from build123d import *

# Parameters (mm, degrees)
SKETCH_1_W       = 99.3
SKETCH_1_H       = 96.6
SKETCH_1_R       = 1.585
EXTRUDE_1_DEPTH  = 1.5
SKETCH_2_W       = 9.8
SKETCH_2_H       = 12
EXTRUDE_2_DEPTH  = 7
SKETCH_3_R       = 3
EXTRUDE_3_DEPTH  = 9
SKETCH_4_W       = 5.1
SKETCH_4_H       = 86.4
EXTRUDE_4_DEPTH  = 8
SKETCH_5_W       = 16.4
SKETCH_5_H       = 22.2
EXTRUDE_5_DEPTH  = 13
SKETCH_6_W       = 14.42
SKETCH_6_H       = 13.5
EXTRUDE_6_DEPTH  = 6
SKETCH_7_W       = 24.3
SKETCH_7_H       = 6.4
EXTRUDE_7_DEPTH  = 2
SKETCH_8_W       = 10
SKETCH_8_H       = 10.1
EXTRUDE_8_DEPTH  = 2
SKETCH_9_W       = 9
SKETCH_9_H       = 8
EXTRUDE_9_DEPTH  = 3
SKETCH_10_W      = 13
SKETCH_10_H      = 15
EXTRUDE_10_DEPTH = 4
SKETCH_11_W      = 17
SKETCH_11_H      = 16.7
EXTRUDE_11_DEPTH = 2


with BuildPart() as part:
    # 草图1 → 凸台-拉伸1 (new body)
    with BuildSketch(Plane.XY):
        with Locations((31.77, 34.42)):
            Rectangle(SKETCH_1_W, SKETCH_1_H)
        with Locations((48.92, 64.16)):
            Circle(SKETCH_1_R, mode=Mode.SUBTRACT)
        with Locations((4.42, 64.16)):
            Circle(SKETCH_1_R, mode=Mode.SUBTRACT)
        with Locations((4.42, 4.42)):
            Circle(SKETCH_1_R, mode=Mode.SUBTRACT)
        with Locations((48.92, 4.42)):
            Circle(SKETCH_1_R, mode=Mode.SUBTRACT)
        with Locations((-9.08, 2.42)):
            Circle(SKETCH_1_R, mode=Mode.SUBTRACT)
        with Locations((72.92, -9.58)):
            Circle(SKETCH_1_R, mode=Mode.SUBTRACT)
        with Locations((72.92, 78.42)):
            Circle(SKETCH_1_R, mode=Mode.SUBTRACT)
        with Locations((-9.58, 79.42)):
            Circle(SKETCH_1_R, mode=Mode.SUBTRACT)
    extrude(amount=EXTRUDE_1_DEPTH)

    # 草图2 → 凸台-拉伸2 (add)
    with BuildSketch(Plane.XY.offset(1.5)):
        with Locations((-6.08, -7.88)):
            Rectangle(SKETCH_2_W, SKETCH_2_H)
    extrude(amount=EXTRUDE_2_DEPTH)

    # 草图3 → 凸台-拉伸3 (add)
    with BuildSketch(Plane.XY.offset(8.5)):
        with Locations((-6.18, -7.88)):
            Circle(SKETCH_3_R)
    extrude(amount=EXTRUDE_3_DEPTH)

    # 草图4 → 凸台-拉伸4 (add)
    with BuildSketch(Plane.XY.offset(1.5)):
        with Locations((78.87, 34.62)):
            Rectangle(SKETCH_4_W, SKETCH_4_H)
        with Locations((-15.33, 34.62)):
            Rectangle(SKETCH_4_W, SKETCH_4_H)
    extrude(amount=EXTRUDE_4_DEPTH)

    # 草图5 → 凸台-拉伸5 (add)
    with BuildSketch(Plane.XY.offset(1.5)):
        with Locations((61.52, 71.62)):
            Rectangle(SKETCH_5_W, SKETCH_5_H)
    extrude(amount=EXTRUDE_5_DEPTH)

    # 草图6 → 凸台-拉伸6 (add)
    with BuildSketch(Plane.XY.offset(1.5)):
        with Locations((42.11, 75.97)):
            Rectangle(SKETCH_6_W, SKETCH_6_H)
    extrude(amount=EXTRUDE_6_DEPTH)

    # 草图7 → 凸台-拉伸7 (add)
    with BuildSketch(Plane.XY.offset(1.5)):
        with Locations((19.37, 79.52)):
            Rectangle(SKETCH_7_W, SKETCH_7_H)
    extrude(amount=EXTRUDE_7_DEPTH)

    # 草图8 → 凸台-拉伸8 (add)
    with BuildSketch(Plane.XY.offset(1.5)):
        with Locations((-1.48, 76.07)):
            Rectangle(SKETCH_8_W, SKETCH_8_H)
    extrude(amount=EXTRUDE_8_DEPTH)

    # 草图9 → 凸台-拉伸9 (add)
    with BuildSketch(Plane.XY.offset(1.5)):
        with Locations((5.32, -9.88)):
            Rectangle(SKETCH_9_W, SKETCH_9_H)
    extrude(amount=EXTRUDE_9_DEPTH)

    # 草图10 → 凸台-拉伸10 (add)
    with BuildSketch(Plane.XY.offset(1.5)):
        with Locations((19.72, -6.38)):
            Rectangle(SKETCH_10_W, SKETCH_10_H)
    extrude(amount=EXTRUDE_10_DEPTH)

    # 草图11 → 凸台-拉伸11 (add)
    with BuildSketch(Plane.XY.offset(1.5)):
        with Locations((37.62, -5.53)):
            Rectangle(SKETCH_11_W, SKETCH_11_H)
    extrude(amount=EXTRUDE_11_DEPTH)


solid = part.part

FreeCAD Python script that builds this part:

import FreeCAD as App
import Part
import Sketcher

V = App.Vector
Q = App.Units.Quantity

doc = App.newDocument("Part")
body = doc.addObject("PartDesign::Body", "Body")

# Sketch on XY plane
sketch1 = body.newObject("Sketcher::SketchObject", "Sketch")
sketch1.AttachmentSupport = (doc.getObject("XY_Plane"), [""])
sketch1.MapMode = "FlatFace"
sketch1.addGeometry(Part.LineSegment(V(-17.9, 82.7, 0), V(-17.9, -13.9, 0)), False)
sketch1.addGeometry(Part.LineSegment(V(-17.9, -13.9, 0), V(81.4, -13.9, 0)), False)
sketch1.addGeometry(Part.LineSegment(V(81.4, -13.9, 0), V(81.4, 82.7, 0)), False)
sketch1.addGeometry(Part.LineSegment(V(81.4, 82.7, 0), V(-17.9, 82.7, 0)), False)
sketch1.addGeometry(Part.Circle(V(-9.1, 2.4, 0), V(0, 0, 1), 1.6), False)
sketch1.addGeometry(Part.Circle(V(4.4, 4.4, 0), V(0, 0, 1), 1.6), False)
sketch1.addGeometry(Part.Circle(V(48.9, 4.4, 0), V(0, 0, 1), 1.6), False)
sketch1.addGeometry(Part.Circle(V(72.9, -9.6, 0), V(0, 0, 1), 1.6), False)
sketch1.addGeometry(Part.Circle(V(4.4, 64.2, 0), V(0, 0, 1), 1.6), False)
sketch1.addGeometry(Part.Circle(V(-9.6, 79.4, 0), V(0, 0, 1), 1.6), False)
sketch1.addGeometry(Part.Circle(V(48.9, 64.2, 0), V(0, 0, 1), 1.6), False)
sketch1.addGeometry(Part.Circle(V(72.9, 78.4, 0), V(0, 0, 1), 1.6), False)
sketch1.addConstraint(Sketcher.Constraint("Coincident", 0, 2, 1, 1))
sketch1.addConstraint(Sketcher.Constraint("Coincident", 1, 2, 2, 1))
sketch1.addConstraint(Sketcher.Constraint("Coincident", 2, 2, 3, 1))
sketch1.addConstraint(Sketcher.Constraint("Coincident", 3, 2, 0, 1))
sketch1.addConstraint(Sketcher.Constraint("Vertical", 0))
sketch1.addConstraint(Sketcher.Constraint("Horizontal", 1))
sketch1.addConstraint(Sketcher.Constraint("Vertical", 2))
sketch1.addConstraint(Sketcher.Constraint("Horizontal", 3))
sketch1.addConstraint(Sketcher.Constraint("Equal", 4, 5))
sketch1.addConstraint(Sketcher.Constraint("Equal", 5, 6))
sketch1.addConstraint(Sketcher.Constraint("Equal", 6, 7))
sketch1.addConstraint(Sketcher.Constraint("Equal", 7, 8))
sketch1.addConstraint(Sketcher.Constraint("Equal", 8, 9))
sketch1.addConstraint(Sketcher.Constraint("Equal", 9, 10))
sketch1.addConstraint(Sketcher.Constraint("Equal", 10, 11))
sketch1.addConstraint(Sketcher.Constraint("Horizontal", 5, 3, 6, 3))
sketch1.addConstraint(Sketcher.Constraint("Horizontal", 8, 3, 10, 3))
sketch1.addConstraint(Sketcher.Constraint("Vertical", 5, 3, 8, 3))
sketch1.addConstraint(Sketcher.Constraint("Vertical", 6, 3, 10, 3))
sketch1.addConstraint(Sketcher.Constraint("Vertical", 7, 3, 11, 3))
sketch1.addConstraint(Sketcher.Constraint("Diameter", 4, Q("3.17 mm")))
sketch1.addConstraint(Sketcher.Constraint("DistanceX", 1, 1, 1, 2, Q("99.3 mm")))
sketch1.addConstraint(Sketcher.Constraint("DistanceY", 0, 2, 0, 1, Q("96.6 mm")))
sketch1.addConstraint(Sketcher.Constraint("DistanceY", 4, 3, 5, 3, Q("2 mm")))
sketch1.addConstraint(Sketcher.Constraint("DistanceX", 4, 3, 6, 3, Q("58 mm")))
sketch1.addConstraint(Sketcher.Constraint("DistanceX", 6, 3, 7, 3, Q("24 mm")))
sketch1.addConstraint(Sketcher.Constraint("DistanceY", 7, 3, 6, 3, Q("14 mm")))
sketch1.addConstraint(Sketcher.Constraint("DistanceX", 9, 3, 8, 3, Q("14 mm")))
sketch1.addConstraint(Sketcher.Constraint("DistanceY", 5, 3, 9, 3, Q("75 mm")))
sketch1.addConstraint(Sketcher.Constraint("DistanceY", 6, 3, 11, 3, Q("74 mm")))
sketch1.addConstraint(Sketcher.Constraint("DistanceX", 5, 3, 1, 2, Q("77 mm")))
sketch1.addConstraint(Sketcher.Constraint("DistanceX", 4, 3, 5, 3, Q("13.5 mm")))
sketch1.addConstraint(Sketcher.Constraint("DistanceY", 0, 2, 4, 3, Q("16.3 mm")))
sketch1.addConstraint(Sketcher.Constraint("DistanceX", 4, 3, -1, 1, Q("9.08 mm")))
sketch1.addConstraint(Sketcher.Constraint("DistanceY", -1, 1, 4, 3, Q("2.42 mm")))
sketch1.addConstraint(Sketcher.Constraint("DistanceY", -1, 1, 8, 3, Q("64.16 mm")))
pad1 = body.newObject("PartDesign::Pad", "Pad")
pad1.Profile = sketch1
pad1.Length = 1.5

# Sketch on XY plane
sketch2 = body.newObject("Sketcher::SketchObject", "Sketch001")
sketch2.AttachmentSupport = (doc.getObject("XY_Plane"), [""])
sketch2.MapMode = "FlatFace"
sketch2.AttachmentOffset = App.Placement(V(0, 0, 1.5), App.Rotation())
sketch2.addGeometry(Part.LineSegment(V(-11, -2, 0), V(-11, -14, 0)), False)
sketch2.addGeometry(Part.LineSegment(V(-11, -14, 0), V(-1, -14, 0)), False)
sketch2.addGeometry(Part.LineSegment(V(-1, -14, 0), V(-1, -2, 0)), False)
sketch2.addGeometry(Part.LineSegment(V(-1, -2, 0), V(-11, -2, 0)), False)
sketch2.addConstraint(Sketcher.Constraint("Coincident", 0, 2, 1, 1))
sketch2.addConstraint(Sketcher.Constraint("Coincident", 1, 2, 2, 1))
sketch2.addConstraint(Sketcher.Constraint("Coincident", 2, 2, 3, 1))
sketch2.addConstraint(Sketcher.Constraint("Coincident", 3, 2, 0, 1))
sketch2.addConstraint(Sketcher.Constraint("Vertical", 0))
sketch2.addConstraint(Sketcher.Constraint("Horizontal", 1))
sketch2.addConstraint(Sketcher.Constraint("Vertical", 2))
sketch2.addConstraint(Sketcher.Constraint("Horizontal", 3))
sketch2.addConstraint(Sketcher.Constraint("DistanceY", 0, 2, 0, 1, Q("12 mm")))
sketch2.addConstraint(Sketcher.Constraint("DistanceX", 1, 1, 1, 2, Q("9.8 mm")))
sketch2.addConstraint(Sketcher.Constraint("DistanceX", 0, 2, -1, 1, Q("10.98 mm")))
sketch2.addConstraint(Sketcher.Constraint("DistanceY", 0, 2, -1, 1, Q("13.88 mm")))
pad2 = body.newObject("PartDesign::Pad", "Pad001")
pad2.Profile = sketch2
pad2.Length = 7

# Sketch on XY plane
sketch3 = body.newObject("Sketcher::SketchObject", "Sketch002")
sketch3.AttachmentSupport = (doc.getObject("XY_Plane"), [""])
sketch3.MapMode = "FlatFace"
sketch3.AttachmentOffset = App.Placement(V(0, 0, 8.5), App.Rotation())
sketch3.addGeometry(Part.Circle(V(-6.2, -7.9, 0), V(0, 0, 1), 3), False)
sketch3.addConstraint(Sketcher.Constraint("Diameter", 0, Q("6 mm")))
sketch3.addConstraint(Sketcher.Constraint("DistanceX", 0, 3, -1, 1, Q("6.18 mm")))
sketch3.addConstraint(Sketcher.Constraint("DistanceY", 0, 3, -1, 1, Q("7.88 mm")))
pad3 = body.newObject("PartDesign::Pad", "Pad002")
pad3.Profile = sketch3
pad3.Length = 9

# Sketch on XY plane
sketch4 = body.newObject("Sketcher::SketchObject", "Sketch003")
sketch4.AttachmentSupport = (doc.getObject("XY_Plane"), [""])
sketch4.MapMode = "FlatFace"
sketch4.AttachmentOffset = App.Placement(V(0, 0, 1.5), App.Rotation())
sketch4.addGeometry(Part.LineSegment(V(76, 78, 0), V(76, -9, 0)), False)
sketch4.addGeometry(Part.LineSegment(V(76, -9, 0), V(81, -9, 0)), False)
sketch4.addGeometry(Part.LineSegment(V(81, -9, 0), V(81, 78, 0)), False)
sketch4.addGeometry(Part.LineSegment(V(81, 78, 0), V(76, 78, 0)), False)
sketch4.addGeometry(Part.LineSegment(V(-18, 78, 0), V(-18, -9, 0)), False)
sketch4.addGeometry(Part.LineSegment(V(-18, -9, 0), V(-13, -9, 0)), False)
sketch4.addGeometry(Part.LineSegment(V(-13, -9, 0), V(-13, 78, 0)), False)
sketch4.addGeometry(Part.LineSegment(V(-13, 78, 0), V(-18, 78, 0)), False)
sketch4.addConstraint(Sketcher.Constraint("Coincident", 0, 2, 1, 1))
sketch4.addConstraint(Sketcher.Constraint("Coincident", 1, 2, 2, 1))
sketch4.addConstraint(Sketcher.Constraint("Coincident", 2, 2, 3, 1))
sketch4.addConstraint(Sketcher.Constraint("Coincident", 3, 2, 0, 1))
sketch4.addConstraint(Sketcher.Constraint("Coincident", 4, 2, 5, 1))
sketch4.addConstraint(Sketcher.Constraint("Coincident", 5, 2, 6, 1))
sketch4.addConstraint(Sketcher.Constraint("Coincident", 6, 2, 7, 1))
sketch4.addConstraint(Sketcher.Constraint("Coincident", 7, 2, 4, 1))
sketch4.addConstraint(Sketcher.Constraint("Vertical", 0))
sketch4.addConstraint(Sketcher.Constraint("Horizontal", 1))
sketch4.addConstraint(Sketcher.Constraint("Vertical", 2))
sketch4.addConstraint(Sketcher.Constraint("Horizontal", 3))
sketch4.addConstraint(Sketcher.Constraint("Vertical", 4))
sketch4.addConstraint(Sketcher.Constraint("Horizontal", 5))
sketch4.addConstraint(Sketcher.Constraint("Vertical", 6))
sketch4.addConstraint(Sketcher.Constraint("Horizontal", 7))
sketch4.addConstraint(Sketcher.Constraint("Horizontal", 1, 2, 4, 2))
sketch4.addConstraint(Sketcher.Constraint("Horizontal", 3, 2, 6, 2))
sketch4.addConstraint(Sketcher.Constraint("Equal", 3, 5))
sketch4.addConstraint(Sketcher.Constraint("DistanceX", 1, 1, 1, 2, Q("5.1 mm")))
sketch4.addConstraint(Sketcher.Constraint("DistanceY", 0, 2, 0, 1, Q("86.4 mm")))
sketch4.addConstraint(Sketcher.Constraint("DistanceX", 4, 2, 0, 2, Q("94.2 mm")))
sketch4.addConstraint(Sketcher.Constraint("DistanceX", -1, 1, 0, 2, Q("76.32 mm")))
sketch4.addConstraint(Sketcher.Constraint("DistanceY", 0, 2, -1, 1, Q("8.58 mm")))
pad4 = body.newObject("PartDesign::Pad", "Pad003")
pad4.Profile = sketch4
pad4.Length = 8

# Sketch on XY plane
sketch5 = body.newObject("Sketcher::SketchObject", "Sketch004")
sketch5.AttachmentSupport = (doc.getObject("XY_Plane"), [""])
sketch5.MapMode = "FlatFace"
sketch5.AttachmentOffset = App.Placement(V(0, 0, 1.5), App.Rotation())
sketch5.addGeometry(Part.LineSegment(V(53, 83, 0), V(53, 61, 0)), False)
sketch5.addGeometry(Part.LineSegment(V(53, 61, 0), V(70, 61, 0)), False)
sketch5.addGeometry(Part.LineSegment(V(70, 61, 0), V(70, 83, 0)), False)
sketch5.addGeometry(Part.LineSegment(V(70, 83, 0), V(53, 83, 0)), False)
sketch5.addConstraint(Sketcher.Constraint("Coincident", 0, 2, 1, 1))
sketch5.addConstraint(Sketcher.Constraint("Coincident", 1, 2, 2, 1))
sketch5.addConstraint(Sketcher.Constraint("Coincident", 2, 2, 3, 1))
sketch5.addConstraint(Sketcher.Constraint("Coincident", 3, 2, 0, 1))
sketch5.addConstraint(Sketcher.Constraint("Vertical", 0))
sketch5.addConstraint(Sketcher.Constraint("Horizontal", 1))
sketch5.addConstraint(Sketcher.Constraint("Vertical", 2))
sketch5.addConstraint(Sketcher.Constraint("Horizontal", 3))
sketch5.addConstraint(Sketcher.Constraint("DistanceX", 1, 1, 1, 2, Q("16.4 mm")))
sketch5.addConstraint(Sketcher.Constraint("DistanceY", 0, 2, 0, 1, Q("22.2 mm")))
sketch5.addConstraint(Sketcher.Constraint("DistanceX", -1, 1, 0, 2, Q("53.32 mm")))
sketch5.addConstraint(Sketcher.Constraint("DistanceY", -1, 1, 0, 2, Q("60.52 mm")))
pad5 = body.newObject("PartDesign::Pad", "Pad004")
pad5.Profile = sketch5
pad5.Length = 13

# Sketch on XY plane
sketch6 = body.newObject("Sketcher::SketchObject", "Sketch005")
sketch6.AttachmentSupport = (doc.getObject("XY_Plane"), [""])
sketch6.MapMode = "FlatFace"
sketch6.AttachmentOffset = App.Placement(V(0, 0, 1.5), App.Rotation())
sketch6.addGeometry(Part.LineSegment(V(35, 83, 0), V(35, 69, 0)), False)
sketch6.addGeometry(Part.LineSegment(V(35, 69, 0), V(49, 69, 0)), False)
sketch6.addGeometry(Part.LineSegment(V(49, 69, 0), V(49, 83, 0)), False)
sketch6.addGeometry(Part.LineSegment(V(49, 83, 0), V(35, 83, 0)), False)
sketch6.addConstraint(Sketcher.Constraint("Coincident", 0, 2, 1, 1))
sketch6.addConstraint(Sketcher.Constraint("Coincident", 1, 2, 2, 1))
sketch6.addConstraint(Sketcher.Constraint("Coincident", 2, 2, 3, 1))
sketch6.addConstraint(Sketcher.Constraint("Coincident", 3, 2, 0, 1))
sketch6.addConstraint(Sketcher.Constraint("Vertical", 0))
sketch6.addConstraint(Sketcher.Constraint("Horizontal", 1))
sketch6.addConstraint(Sketcher.Constraint("Vertical", 2))
sketch6.addConstraint(Sketcher.Constraint("Horizontal", 3))
sketch6.addConstraint(Sketcher.Constraint("DistanceY", 0, 2, 0, 1, Q("13.5 mm")))
sketch6.addConstraint(Sketcher.Constraint("DistanceX", 1, 1, 1, 2, Q("14.42 mm")))
sketch6.addConstraint(Sketcher.Constraint("DistanceX", -1, 1, 0, 2, Q("34.9 mm")))
sketch6.addConstraint(Sketcher.Constraint("DistanceY", -1, 1, 0, 2, Q("69.22 mm")))
pad6 = body.newObject("PartDesign::Pad", "Pad005")
pad6.Profile = sketch6
pad6.Length = 6

# Sketch on XY plane
sketch7 = body.newObject("Sketcher::SketchObject", "Sketch006")
sketch7.AttachmentSupport = (doc.getObject("XY_Plane"), [""])
sketch7.MapMode = "FlatFace"
sketch7.AttachmentOffset = App.Placement(V(0, 0, 1.5), App.Rotation())
sketch7.addGeometry(Part.LineSegment(V(7, 83, 0), V(7, 76, 0)), False)
sketch7.addGeometry(Part.LineSegment(V(7, 76, 0), V(32, 76, 0)), False)
sketch7.addGeometry(Part.LineSegment(V(32, 76, 0), V(32, 83, 0)), False)
sketch7.addGeometry(Part.LineSegment(V(32, 83, 0), V(7, 83, 0)), False)
sketch7.addConstraint(Sketcher.Constraint("Coincident", 0, 2, 1, 1))
sketch7.addConstraint(Sketcher.Constraint("Coincident", 1, 2, 2, 1))
sketch7.addConstraint(Sketcher.Constraint("Coincident", 2, 2, 3, 1))
sketch7.addConstraint(Sketcher.Constraint("Coincident", 3, 2, 0, 1))
sketch7.addConstraint(Sketcher.Constraint("Vertical", 0))
sketch7.addConstraint(Sketcher.Constraint("Horizontal", 1))
sketch7.addConstraint(Sketcher.Constraint("Vertical", 2))
sketch7.addConstraint(Sketcher.Constraint("Horizontal", 3))
sketch7.addConstraint(Sketcher.Constraint("DistanceX", 1, 1, 1, 2, Q("24.3 mm")))
sketch7.addConstraint(Sketcher.Constraint("DistanceY", 0, 2, 0, 1, Q("6.4 mm")))
sketch7.addConstraint(Sketcher.Constraint("DistanceX", -1, 1, 0, 2, Q("7.22 mm")))
sketch7.addConstraint(Sketcher.Constraint("DistanceY", -1, 1, 0, 2, Q("76.32 mm")))
pad7 = body.newObject("PartDesign::Pad", "Pad006")
pad7.Profile = sketch7
pad7.Length = 2

# Sketch on XY plane
sketch8 = body.newObject("Sketcher::SketchObject", "Sketch007")
sketch8.AttachmentSupport = (doc.getObject("XY_Plane"), [""])
sketch8.MapMode = "FlatFace"
sketch8.AttachmentOffset = App.Placement(V(0, 0, 1.5), App.Rotation())
sketch8.addGeometry(Part.LineSegment(V(-6, 81, 0), V(-6, 71, 0)), False)
sketch8.addGeometry(Part.LineSegment(V(-6, 71, 0), V(4, 71, 0)), False)
sketch8.addGeometry(Part.LineSegment(V(4, 71, 0), V(4, 81, 0)), False)
sketch8.addGeometry(Part.LineSegment(V(4, 81, 0), V(-6, 81, 0)), False)
sketch8.addConstraint(Sketcher.Constraint("Coincident", 0, 2, 1, 1))
sketch8.addConstraint(Sketcher.Constraint("Coincident", 1, 2, 2, 1))
sketch8.addConstraint(Sketcher.Constraint("Coincident", 2, 2, 3, 1))
sketch8.addConstraint(Sketcher.Constraint("Coincident", 3, 2, 0, 1))
sketch8.addConstraint(Sketcher.Constraint("Vertical", 0))
sketch8.addConstraint(Sketcher.Constraint("Horizontal", 1))
sketch8.addConstraint(Sketcher.Constraint("Vertical", 2))
sketch8.addConstraint(Sketcher.Constraint("Horizontal", 3))
sketch8.addConstraint(Sketcher.Constraint("DistanceX", 1, 1, 1, 2, Q("10 mm")))
sketch8.addConstraint(Sketcher.Constraint("DistanceY", 0, 2, 0, 1, Q("10.1 mm")))
sketch8.addConstraint(Sketcher.Constraint("DistanceX", 0, 2, -1, 1, Q("6.48 mm")))
sketch8.addConstraint(Sketcher.Constraint("DistanceY", -1, 1, 0, 2, Q("71.02 mm")))
pad8 = body.newObject("PartDesign::Pad", "Pad007")
pad8.Profile = sketch8
pad8.Length = 2

# Sketch on XY plane
sketch9 = body.newObject("Sketcher::SketchObject", "Sketch008")
sketch9.AttachmentSupport = (doc.getObject("XY_Plane"), [""])
sketch9.MapMode = "FlatFace"
sketch9.AttachmentOffset = App.Placement(V(0, 0, 1.5), App.Rotation())
sketch9.addGeometry(Part.LineSegment(V(1, -6, 0), V(1, -14, 0)), False)
sketch9.addGeometry(Part.LineSegment(V(1, -14, 0), V(10, -14, 0)), False)
sketch9.addGeometry(Part.LineSegment(V(10, -14, 0), V(10, -6, 0)), False)
sketch9.addGeometry(Part.LineSegment(V(10, -6, 0), V(1, -6, 0)), False)
sketch9.addConstraint(Sketcher.Constraint("Coincident", 0, 2, 1, 1))
sketch9.addConstraint(Sketcher.Constraint("Coincident", 1, 2, 2, 1))
sketch9.addConstraint(Sketcher.Constraint("Coincident", 2, 2, 3, 1))
sketch9.addConstraint(Sketcher.Constraint("Coincident", 3, 2, 0, 1))
sketch9.addConstraint(Sketcher.Constraint("Vertical", 0))
sketch9.addConstraint(Sketcher.Constraint("Horizontal", 1))
sketch9.addConstraint(Sketcher.Constraint("Vertical", 2))
sketch9.addConstraint(Sketcher.Constraint("Horizontal", 3))
sketch9.addConstraint(Sketcher.Constraint("DistanceX", 1, 1, 1, 2, Q("9 mm")))
sketch9.addConstraint(Sketcher.Constraint("DistanceY", 0, 2, 0, 1, Q("8 mm")))
sketch9.addConstraint(Sketcher.Constraint("DistanceX", -1, 1, 0, 2, Q("0.82 mm")))
sketch9.addConstraint(Sketcher.Constraint("DistanceY", 0, 2, -1, 1, Q("13.88 mm")))
pad9 = body.newObject("PartDesign::Pad", "Pad008")
pad9.Profile = sketch9
pad9.Length = 3

# Sketch on XY plane
sketch10 = body.newObject("Sketcher::SketchObject", "Sketch009")
sketch10.AttachmentSupport = (doc.getObject("XY_Plane"), [""])
sketch10.MapMode = "FlatFace"
sketch10.AttachmentOffset = App.Placement(V(0, 0, 1.5), App.Rotation())
sketch10.addGeometry(Part.LineSegment(V(13, 1, 0), V(13, -14, 0)), False)
sketch10.addGeometry(Part.LineSegment(V(13, -14, 0), V(26, -14, 0)), False)
sketch10.addGeometry(Part.LineSegment(V(26, -14, 0), V(26, 1, 0)), False)
sketch10.addGeometry(Part.LineSegment(V(26, 1, 0), V(13, 1, 0)), False)
sketch10.addConstraint(Sketcher.Constraint("Coincident", 0, 2, 1, 1))
sketch10.addConstraint(Sketcher.Constraint("Coincident", 1, 2, 2, 1))
sketch10.addConstraint(Sketcher.Constraint("Coincident", 2, 2, 3, 1))
sketch10.addConstraint(Sketcher.Constraint("Coincident", 3, 2, 0, 1))
sketch10.addConstraint(Sketcher.Constraint("Vertical", 0))
sketch10.addConstraint(Sketcher.Constraint("Horizontal", 1))
sketch10.addConstraint(Sketcher.Constraint("Vertical", 2))
sketch10.addConstraint(Sketcher.Constraint("Horizontal", 3))
sketch10.addConstraint(Sketcher.Constraint("DistanceX", 1, 1, 1, 2, Q("13 mm")))
sketch10.addConstraint(Sketcher.Constraint("DistanceY", 0, 2, 0, 1, Q("15 mm")))
sketch10.addConstraint(Sketcher.Constraint("DistanceX", -1, 1, 0, 2, Q("13.22 mm")))
sketch10.addConstraint(Sketcher.Constraint("DistanceY", 0, 2, -1, 1, Q("13.88 mm")))
pad10 = body.newObject("PartDesign::Pad", "Pad009")
pad10.Profile = sketch10
pad10.Length = 4

# Sketch on XY plane
sketch11 = body.newObject("Sketcher::SketchObject", "Sketch010")
sketch11.AttachmentSupport = (doc.getObject("XY_Plane"), [""])
sketch11.MapMode = "FlatFace"
sketch11.AttachmentOffset = App.Placement(V(0, 0, 1.5), App.Rotation())
sketch11.addGeometry(Part.LineSegment(V(29, 3, 0), V(29, -14, 0)), False)
sketch11.addGeometry(Part.LineSegment(V(29, -14, 0), V(46, -14, 0)), False)
sketch11.addGeometry(Part.LineSegment(V(46, -14, 0), V(46, 3, 0)), False)
sketch11.addGeometry(Part.LineSegment(V(46, 3, 0), V(29, 3, 0)), False)
sketch11.addConstraint(Sketcher.Constraint("Coincident", 0, 2, 1, 1))
sketch11.addConstraint(Sketcher.Constraint("Coincident", 1, 2, 2, 1))
sketch11.addConstraint(Sketcher.Constraint("Coincident", 2, 2, 3, 1))
sketch11.addConstraint(Sketcher.Constraint("Coincident", 3, 2, 0, 1))
sketch11.addConstraint(Sketcher.Constraint("Vertical", 0))
sketch11.addConstraint(Sketcher.Constraint("Horizontal", 1))
sketch11.addConstraint(Sketcher.Constraint("Vertical", 2))
sketch11.addConstraint(Sketcher.Constraint("Horizontal", 3))
sketch11.addConstraint(Sketcher.Constraint("DistanceX", 1, 1, 1, 2, Q("17 mm")))
sketch11.addConstraint(Sketcher.Constraint("DistanceY", 0, 2, 0, 1, Q("16.7 mm")))
sketch11.addConstraint(Sketcher.Constraint("DistanceX", -1, 1, 0, 2, Q("29.12 mm")))
sketch11.addConstraint(Sketcher.Constraint("DistanceY", 0, 2, -1, 1, Q("13.88 mm")))
pad11 = body.newObject("PartDesign::Pad", "Pad010")
pad11.Profile = sketch11
pad11.Length = 2

doc.recompute()
